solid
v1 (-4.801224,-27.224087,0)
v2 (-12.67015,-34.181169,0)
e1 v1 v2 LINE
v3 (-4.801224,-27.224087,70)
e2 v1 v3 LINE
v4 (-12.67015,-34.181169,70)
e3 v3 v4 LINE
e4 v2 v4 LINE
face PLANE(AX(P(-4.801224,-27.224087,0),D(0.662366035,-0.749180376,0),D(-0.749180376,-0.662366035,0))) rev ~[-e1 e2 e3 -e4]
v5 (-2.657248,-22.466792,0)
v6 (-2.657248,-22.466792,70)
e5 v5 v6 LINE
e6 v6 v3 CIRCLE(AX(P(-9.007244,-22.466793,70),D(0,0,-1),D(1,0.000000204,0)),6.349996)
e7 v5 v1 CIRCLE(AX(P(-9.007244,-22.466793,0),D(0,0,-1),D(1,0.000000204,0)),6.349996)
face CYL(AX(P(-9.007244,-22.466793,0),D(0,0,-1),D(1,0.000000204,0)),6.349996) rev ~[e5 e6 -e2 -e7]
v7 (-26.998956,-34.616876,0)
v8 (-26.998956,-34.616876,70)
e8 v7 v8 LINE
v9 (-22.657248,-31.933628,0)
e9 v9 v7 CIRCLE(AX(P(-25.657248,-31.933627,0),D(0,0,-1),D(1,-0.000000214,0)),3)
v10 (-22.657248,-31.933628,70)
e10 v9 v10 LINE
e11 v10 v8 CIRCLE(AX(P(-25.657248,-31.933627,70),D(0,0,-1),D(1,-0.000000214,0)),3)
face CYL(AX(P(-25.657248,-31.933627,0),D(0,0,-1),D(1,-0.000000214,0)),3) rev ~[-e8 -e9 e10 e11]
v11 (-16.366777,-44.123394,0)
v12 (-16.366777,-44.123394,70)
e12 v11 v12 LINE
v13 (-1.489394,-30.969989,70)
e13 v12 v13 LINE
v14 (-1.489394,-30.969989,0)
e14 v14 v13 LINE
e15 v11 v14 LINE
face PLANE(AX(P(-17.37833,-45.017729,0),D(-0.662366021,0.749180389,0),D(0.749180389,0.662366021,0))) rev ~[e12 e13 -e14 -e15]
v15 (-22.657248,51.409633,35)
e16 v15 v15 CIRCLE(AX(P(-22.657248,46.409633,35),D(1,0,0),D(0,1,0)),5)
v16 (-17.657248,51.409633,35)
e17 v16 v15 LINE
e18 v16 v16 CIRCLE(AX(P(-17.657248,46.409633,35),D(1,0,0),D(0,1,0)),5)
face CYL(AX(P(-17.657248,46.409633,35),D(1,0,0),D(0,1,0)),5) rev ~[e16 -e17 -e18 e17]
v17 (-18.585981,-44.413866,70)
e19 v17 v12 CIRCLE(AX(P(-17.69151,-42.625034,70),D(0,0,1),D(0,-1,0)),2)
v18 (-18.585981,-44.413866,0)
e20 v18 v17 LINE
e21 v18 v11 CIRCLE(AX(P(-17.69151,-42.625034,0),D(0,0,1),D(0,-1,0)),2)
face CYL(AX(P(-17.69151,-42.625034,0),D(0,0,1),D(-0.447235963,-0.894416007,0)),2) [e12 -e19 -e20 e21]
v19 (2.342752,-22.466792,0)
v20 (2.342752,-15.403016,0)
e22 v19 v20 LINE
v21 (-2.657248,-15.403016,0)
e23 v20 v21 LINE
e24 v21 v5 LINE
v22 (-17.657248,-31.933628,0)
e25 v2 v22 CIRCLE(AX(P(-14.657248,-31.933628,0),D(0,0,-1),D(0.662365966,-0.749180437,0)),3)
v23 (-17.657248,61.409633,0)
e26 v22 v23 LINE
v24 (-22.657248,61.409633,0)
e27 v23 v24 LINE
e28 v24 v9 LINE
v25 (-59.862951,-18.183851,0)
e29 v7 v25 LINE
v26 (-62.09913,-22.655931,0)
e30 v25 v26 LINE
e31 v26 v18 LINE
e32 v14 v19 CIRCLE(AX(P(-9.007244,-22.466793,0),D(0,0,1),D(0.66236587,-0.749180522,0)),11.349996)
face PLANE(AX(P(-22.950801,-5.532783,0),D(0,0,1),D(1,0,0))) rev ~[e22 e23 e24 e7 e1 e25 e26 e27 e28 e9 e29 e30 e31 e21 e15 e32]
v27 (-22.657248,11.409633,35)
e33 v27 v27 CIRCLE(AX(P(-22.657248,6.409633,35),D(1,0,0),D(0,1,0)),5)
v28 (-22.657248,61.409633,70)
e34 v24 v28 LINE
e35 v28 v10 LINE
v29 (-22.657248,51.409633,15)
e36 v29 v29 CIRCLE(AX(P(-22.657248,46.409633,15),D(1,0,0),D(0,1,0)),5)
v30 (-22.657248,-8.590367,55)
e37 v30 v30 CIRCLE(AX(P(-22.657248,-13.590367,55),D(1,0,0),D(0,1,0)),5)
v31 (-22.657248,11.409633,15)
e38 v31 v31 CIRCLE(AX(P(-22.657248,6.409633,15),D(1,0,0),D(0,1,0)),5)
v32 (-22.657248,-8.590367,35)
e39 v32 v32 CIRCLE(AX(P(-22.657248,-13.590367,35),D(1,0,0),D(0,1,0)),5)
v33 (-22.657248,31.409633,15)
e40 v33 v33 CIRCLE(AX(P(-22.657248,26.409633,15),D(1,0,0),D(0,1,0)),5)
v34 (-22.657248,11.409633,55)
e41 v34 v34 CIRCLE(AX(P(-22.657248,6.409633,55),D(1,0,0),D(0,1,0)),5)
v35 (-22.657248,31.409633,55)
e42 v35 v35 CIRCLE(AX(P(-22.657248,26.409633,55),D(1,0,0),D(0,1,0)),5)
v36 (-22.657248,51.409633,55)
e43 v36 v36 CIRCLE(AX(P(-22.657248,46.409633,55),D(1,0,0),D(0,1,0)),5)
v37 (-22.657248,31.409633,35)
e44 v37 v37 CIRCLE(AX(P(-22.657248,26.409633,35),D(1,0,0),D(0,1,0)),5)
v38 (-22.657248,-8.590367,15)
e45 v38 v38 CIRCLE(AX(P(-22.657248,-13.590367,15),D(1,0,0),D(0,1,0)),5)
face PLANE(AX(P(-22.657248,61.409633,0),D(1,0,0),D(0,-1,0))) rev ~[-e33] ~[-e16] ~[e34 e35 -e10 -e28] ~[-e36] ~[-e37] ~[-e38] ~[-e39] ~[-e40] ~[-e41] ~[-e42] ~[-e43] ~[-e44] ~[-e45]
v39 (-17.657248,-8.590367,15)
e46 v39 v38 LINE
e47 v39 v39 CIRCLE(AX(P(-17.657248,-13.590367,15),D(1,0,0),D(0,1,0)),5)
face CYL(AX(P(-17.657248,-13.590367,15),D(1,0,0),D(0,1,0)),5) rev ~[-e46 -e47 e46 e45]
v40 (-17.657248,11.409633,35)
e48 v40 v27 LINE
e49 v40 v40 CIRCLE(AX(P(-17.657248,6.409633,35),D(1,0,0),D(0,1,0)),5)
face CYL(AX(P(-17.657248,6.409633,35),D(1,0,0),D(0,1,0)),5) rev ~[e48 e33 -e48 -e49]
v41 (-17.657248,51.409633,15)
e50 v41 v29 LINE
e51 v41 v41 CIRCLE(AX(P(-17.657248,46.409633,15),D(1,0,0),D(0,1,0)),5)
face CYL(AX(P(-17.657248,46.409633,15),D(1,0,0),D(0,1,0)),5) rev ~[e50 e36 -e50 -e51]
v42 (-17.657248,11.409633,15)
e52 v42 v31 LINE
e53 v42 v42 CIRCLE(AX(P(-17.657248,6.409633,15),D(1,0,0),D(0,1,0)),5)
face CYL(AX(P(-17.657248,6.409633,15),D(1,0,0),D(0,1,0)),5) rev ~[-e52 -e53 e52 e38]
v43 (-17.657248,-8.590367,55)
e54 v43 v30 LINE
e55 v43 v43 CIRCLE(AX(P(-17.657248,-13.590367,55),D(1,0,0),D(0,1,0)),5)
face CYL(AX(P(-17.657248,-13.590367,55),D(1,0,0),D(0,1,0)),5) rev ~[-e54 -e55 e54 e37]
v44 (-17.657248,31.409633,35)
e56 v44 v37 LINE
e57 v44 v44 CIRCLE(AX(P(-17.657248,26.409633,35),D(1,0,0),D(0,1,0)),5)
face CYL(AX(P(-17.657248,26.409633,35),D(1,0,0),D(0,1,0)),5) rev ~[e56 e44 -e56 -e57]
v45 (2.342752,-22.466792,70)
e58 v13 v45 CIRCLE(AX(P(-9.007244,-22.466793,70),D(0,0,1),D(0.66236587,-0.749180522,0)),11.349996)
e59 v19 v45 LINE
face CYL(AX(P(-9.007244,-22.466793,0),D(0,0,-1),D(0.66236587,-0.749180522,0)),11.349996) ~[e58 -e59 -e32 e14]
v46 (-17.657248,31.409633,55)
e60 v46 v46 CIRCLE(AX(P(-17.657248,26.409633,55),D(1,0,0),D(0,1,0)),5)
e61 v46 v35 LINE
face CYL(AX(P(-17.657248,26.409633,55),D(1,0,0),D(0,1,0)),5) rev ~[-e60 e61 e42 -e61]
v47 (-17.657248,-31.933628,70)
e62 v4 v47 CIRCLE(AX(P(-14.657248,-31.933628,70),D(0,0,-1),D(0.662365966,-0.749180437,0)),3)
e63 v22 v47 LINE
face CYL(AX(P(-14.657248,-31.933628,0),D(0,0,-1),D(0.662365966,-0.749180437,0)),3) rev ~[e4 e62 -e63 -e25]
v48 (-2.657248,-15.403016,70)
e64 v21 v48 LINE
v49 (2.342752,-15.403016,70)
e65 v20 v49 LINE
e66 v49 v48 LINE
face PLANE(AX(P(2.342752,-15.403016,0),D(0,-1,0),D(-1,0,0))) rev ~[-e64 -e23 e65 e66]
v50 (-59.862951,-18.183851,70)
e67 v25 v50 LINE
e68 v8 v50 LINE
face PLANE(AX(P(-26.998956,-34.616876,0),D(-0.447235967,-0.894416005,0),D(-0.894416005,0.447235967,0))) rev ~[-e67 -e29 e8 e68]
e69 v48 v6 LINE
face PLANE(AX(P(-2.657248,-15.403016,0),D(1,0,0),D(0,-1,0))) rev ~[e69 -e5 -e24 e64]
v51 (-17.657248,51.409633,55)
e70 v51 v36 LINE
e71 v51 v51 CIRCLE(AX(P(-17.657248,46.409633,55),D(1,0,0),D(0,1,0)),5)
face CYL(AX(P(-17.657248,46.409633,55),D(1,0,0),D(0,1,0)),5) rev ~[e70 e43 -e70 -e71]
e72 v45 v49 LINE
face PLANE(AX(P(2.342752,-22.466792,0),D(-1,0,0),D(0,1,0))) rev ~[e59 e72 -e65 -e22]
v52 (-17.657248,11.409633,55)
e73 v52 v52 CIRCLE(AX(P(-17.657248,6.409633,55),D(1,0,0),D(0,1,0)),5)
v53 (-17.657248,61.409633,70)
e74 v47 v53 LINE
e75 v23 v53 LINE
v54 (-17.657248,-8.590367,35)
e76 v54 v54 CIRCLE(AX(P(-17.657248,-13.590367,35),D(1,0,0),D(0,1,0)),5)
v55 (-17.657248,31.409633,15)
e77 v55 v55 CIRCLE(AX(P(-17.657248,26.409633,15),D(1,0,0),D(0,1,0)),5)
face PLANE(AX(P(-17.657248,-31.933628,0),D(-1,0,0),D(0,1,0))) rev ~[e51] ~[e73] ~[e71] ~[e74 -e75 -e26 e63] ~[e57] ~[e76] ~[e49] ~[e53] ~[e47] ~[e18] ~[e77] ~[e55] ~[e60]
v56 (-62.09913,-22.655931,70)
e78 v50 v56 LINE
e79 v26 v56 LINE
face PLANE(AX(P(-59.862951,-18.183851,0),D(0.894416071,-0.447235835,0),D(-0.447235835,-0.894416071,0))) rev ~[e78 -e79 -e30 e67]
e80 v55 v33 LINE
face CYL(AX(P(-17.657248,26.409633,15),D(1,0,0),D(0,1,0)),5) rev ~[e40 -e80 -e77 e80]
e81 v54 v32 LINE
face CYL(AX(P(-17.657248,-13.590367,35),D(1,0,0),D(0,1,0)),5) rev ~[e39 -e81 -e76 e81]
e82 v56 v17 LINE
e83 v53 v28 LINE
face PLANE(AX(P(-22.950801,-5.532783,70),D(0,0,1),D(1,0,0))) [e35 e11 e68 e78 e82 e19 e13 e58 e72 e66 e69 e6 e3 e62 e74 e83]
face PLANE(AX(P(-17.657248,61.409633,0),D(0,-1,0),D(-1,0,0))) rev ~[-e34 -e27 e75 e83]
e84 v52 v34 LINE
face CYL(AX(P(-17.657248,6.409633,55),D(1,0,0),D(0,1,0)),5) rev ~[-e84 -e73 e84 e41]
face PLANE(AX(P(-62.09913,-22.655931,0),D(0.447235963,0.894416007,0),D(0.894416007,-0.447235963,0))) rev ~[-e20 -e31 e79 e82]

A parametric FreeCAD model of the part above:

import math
import FreeCAD as App
import Part
import Sketcher
Q = App.Units.Quantity


def edges_at(feature, points):
    """Names of the edges that pass closest to the given points."""
    edges = feature.Shape.Edges
    near = lambda p: min(range(len(edges)), key=lambda i: edges[i].distToShape(Part.Vertex(*p))[0])
    return sorted({f"Edge{near(p) + 1}" for p in points})

doc = App.newDocument("Part")
body = doc.addObject("PartDesign::Body", "Body")

# Sketch on XY plane
sketch1 = doc.addObject("Sketcher::SketchObject", "Sketch")
body.addObject(sketch1)
sketch1.AttachmentSupport = (doc.XY_Plane, [""])
sketch1.MapMode = "FlatFace"
sketch1.addGeometry(Part.LineSegment(App.Vector(-17.7, -31.9, 0), App.Vector(-17.7, 61.4, 0)), False)
sketch1.addGeometry(Part.LineSegment(App.Vector(-17.7, 61.4, 0), App.Vector(-22.7, 61.4, 0)), False)
sketch1.addGeometry(Part.LineSegment(App.Vector(-22.7, 61.4, 0), App.Vector(-22.7, -31.9, 0)), False)
sketch1.addGeometry(Part.ArcOfCircle(Part.Circle(App.Vector(-25.7, -31.9, 0), App.Vector(0, 0, 1), 3), math.radians(-117), math.radians(0)), False)
sketch1.addGeometry(Part.LineSegment(App.Vector(-27, -34.6, 0), App.Vector(-59.9, -18.2, 0)), False)
sketch1.addGeometry(Part.LineSegment(App.Vector(-59.9, -18.2, 0), App.Vector(-62.1, -22.7, 0)), False)
sketch1.addGeometry(Part.LineSegment(App.Vector(-62.1, -22.7, 0), App.Vector(-17.4, -45, 0)), False)
sketch1.addGeometry(Part.LineSegment(App.Vector(-17.4, -45, 0), App.Vector(-1.5, -31, 0)), False)
sketch1.addGeometry(Part.ArcOfCircle(Part.Circle(App.Vector(-9, -22.5, 0), App.Vector(0, 0, 1), 11.3), math.radians(-49), math.radians(0)), False)
sketch1.addGeometry(Part.LineSegment(App.Vector(2.3, -22.5, 0), App.Vector(2.3, -15.4, 0)), False)
sketch1.addGeometry(Part.LineSegment(App.Vector(2.3, -15.4, 0), App.Vector(-2.7, -15.4, 0)), False)
sketch1.addGeometry(Part.LineSegment(App.Vector(-2.7, -15.4, 0), App.Vector(-2.7, -22.5, 0)), False)
sketch1.addGeometry(Part.ArcOfCircle(Part.Circle(App.Vector(-9, -22.5, 0), App.Vector(0, 0, 1), 6.3), math.radians(-49), math.radians(0)), False)
sketch1.addGeometry(Part.LineSegment(App.Vector(-4.8, -27.2, 0), App.Vector(-12.7, -34.2, 0)), False)
sketch1.addGeometry(Part.ArcOfCircle(Part.Circle(App.Vector(-14.7, -31.9, 0), App.Vector(0, 0, 1), 3), math.radians(-180), math.radians(-49)), False)
sketch1.addConstraint(Sketcher.Constraint("Coincident", 0, 2, 1, 1))
sketch1.addConstraint(Sketcher.Constraint("Coincident", 1, 2, 2, 1))
sketch1.addConstraint(Sketcher.Constraint("Tangent", 2, 2, 3, 2))
sketch1.addConstraint(Sketcher.Constraint("Tangent", 3, 1, 4, 1))
sketch1.addConstraint(Sketcher.Constraint("Coincident", 4, 2, 5, 1))
sketch1.addConstraint(Sketcher.Constraint("Coincident", 5, 2, 6, 1))
sketch1.addConstraint(Sketcher.Constraint("Coincident", 6, 2, 7, 1))
sketch1.addConstraint(Sketcher.Constraint("Tangent", 7, 2, 8, 1))
sketch1.addConstraint(Sketcher.Constraint("Tangent", 8, 2, 9, 1))
sketch1.addConstraint(Sketcher.Constraint("Coincident", 9, 2, 10, 1))
sketch1.addConstraint(Sketcher.Constraint("Coincident", 10, 2, 11, 1))
sketch1.addConstraint(Sketcher.Constraint("Tangent", 11, 2, 12, 2))
sketch1.addConstraint(Sketcher.Constraint("Tangent", 12, 1, 13, 1))
sketch1.addConstraint(Sketcher.Constraint("Tangent", 13, 2, 14, 2))
sketch1.addConstraint(Sketcher.Constraint("Tangent", 14, 1, 0, 1))
sketch1.addConstraint(Sketcher.Constraint("Vertical", 0))
sketch1.addConstraint(Sketcher.Constraint("Horizontal", 1))
sketch1.addConstraint(Sketcher.Constraint("Vertical", 2))
sketch1.addConstraint(Sketcher.Constraint("Vertical", 9))
sketch1.addConstraint(Sketcher.Constraint("Horizontal", 10))
sketch1.addConstraint(Sketcher.Constraint("Vertical", 11))
sketch1.addConstraint(Sketcher.Constraint("Coincident", 12, 3, 8, 3))
sketch1.addConstraint(Sketcher.Constraint("Equal", 3, 14))
sketch1.addConstraint(Sketcher.Constraint("Perpendicular", 4, 5))
sketch1.addConstraint(Sketcher.Constraint("Perpendicular", 5, 6))
sketch1.addConstraint(Sketcher.Constraint("Parallel", 7, 13))
sketch1.addConstraint(Sketcher.Constraint("Horizontal", 3, 3, 14, 3))
sketch1.addConstraint(Sketcher.Constraint("Equal", 1, 10))
sketch1.addConstraint(Sketcher.Constraint("Radius", 3, Q("3 mm")))
sketch1.addConstraint(Sketcher.Constraint("DistanceX", 1, 2, 1, 1, Q("5 mm")))
sketch1.addConstraint(Sketcher.Constraint("Distance", 5, Q("5 mm")))
sketch1.addConstraint(Sketcher.Constraint("Distance", 6, Q("50 mm")))
sketch1.addConstraint(Sketcher.Constraint("DistanceX", 14, 3, 8, 2, Q("17 mm")))
sketch1.addConstraint(Sketcher.Constraint("Radius", 8, Q("11.349996 mm")))
sketch1.addConstraint(Sketcher.Constraint("DistanceY", 0, 1, 0, 2, Q("93.343261 mm")))
sketch1.addConstraint(Sketcher.Constraint("DistanceY", 6, 2, 14, 3, Q("13.084101 mm")))
sketch1.addConstraint(Sketcher.Constraint("DistanceY", 7, 2, 12, 1, Q("3.745902 mm")))
sketch1.addConstraint(Sketcher.Constraint("DistanceY", 9, 1, 9, 2, Q("7.063776 mm")))
sketch1.addConstraint(Sketcher.Constraint("DistanceX", 3, 3, -1, 1, Q("25.657248 mm")))
sketch1.addConstraint(Sketcher.Constraint("DistanceY", 4, 2, -1, 1, Q("18.183851 mm")))
pad1 = doc.addObject("PartDesign::Pad", "Pad")
body.addObject(pad1)
pad1.Profile = sketch1
pad1.Length = 70

# Sketch on YZ plane
sketch2 = doc.addObject("Sketcher::SketchObject", "Sketch001")
body.addObject(sketch2)
sketch2.AttachmentSupport = (doc.YZ_Plane, [""])
sketch2.MapMode = "FlatFace"
sketch2.AttachmentOffset = App.Placement(App.Vector(0, 0, -17.657248), App.Rotation())
sketch2.addGeometry(Part.Circle(App.Vector(46, 55, 0), App.Vector(0, 0, 1), 5), False)
sketch2.addGeometry(Part.Circle(App.Vector(46, 35, 0), App.Vector(0, 0, 1), 5), False)
sketch2.addGeometry(Part.Circle(App.Vector(46, 15, 0), App.Vector(0, 0, 1), 5), False)
sketch2.addGeometry(Part.Circle(App.Vector(26, 55, 0), App.Vector(0, 0, 1), 5), False)
sketch2.addGeometry(Part.Circle(App.Vector(26, 35, 0), App.Vector(0, 0, 1), 5), False)
sketch2.addGeometry(Part.Circle(App.Vector(26, 15, 0), App.Vector(0, 0, 1), 5), False)
sketch2.addGeometry(Part.Circle(App.Vector(6, 55, 0), App.Vector(0, 0, 1), 5), False)
sketch2.addGeometry(Part.Circle(App.Vector(6, 35, 0), App.Vector(0, 0, 1), 5), False)
sketch2.addGeometry(Part.Circle(App.Vector(6, 15, 0), App.Vector(0, 0, 1), 5), False)
sketch2.addGeometry(Part.Circle(App.Vector(-14, 55, 0), App.Vector(0, 0, 1), 5), False)
sketch2.addGeometry(Part.Circle(App.Vector(-14, 35, 0), App.Vector(0, 0, 1), 5), False)
sketch2.addGeometry(Part.Circle(App.Vector(-14, 15, 0), App.Vector(0, 0, 1), 5), False)
sketch2.addConstraint(Sketcher.Constraint("Equal", 0, 1))
sketch2.addConstraint(Sketcher.Constraint("Equal", 1, 2))
sketch2.addConstraint(Sketcher.Constraint("Equal", 2, 3))
sketch2.addConstraint(Sketcher.Constraint("Equal", 3, 4))
sketch2.addConstraint(Sketcher.Constraint("Equal", 4, 5))
sketch2.addConstraint(Sketcher.Constraint("Equal", 5, 6))
sketch2.addConstraint(Sketcher.Constraint("Equal", 6, 7))
sketch2.addConstraint(Sketcher.Constraint("Equal", 7, 8))
sketch2.addConstraint(Sketcher.Constraint("Equal", 8, 9))
sketch2.addConstraint(Sketcher.Constraint("Equal", 9, 10))
sketch2.addConstraint(Sketcher.Constraint("Equal", 10, 11))
sketch2.addConstraint(Sketcher.Constraint("Horizontal", 0, 3, 3, 3))
sketch2.addConstraint(Sketcher.Constraint("Horizontal", 1, 3, 4, 3))
sketch2.addConstraint(Sketcher.Constraint("Horizontal", 2, 3, 5, 3))
sketch2.addConstraint(Sketcher.Constraint("Horizontal", 3, 3, 6, 3))
sketch2.addConstraint(Sketcher.Constraint("Horizontal", 4, 3, 7, 3))
sketch2.addConstraint(Sketcher.Constraint("Horizontal", 5, 3, 8, 3))
sketch2.addConstraint(Sketcher.Constraint("Horizontal", 6, 3, 9, 3))
sketch2.addConstraint(Sketcher.Constraint("Horizontal", 7, 3, 10, 3))
sketch2.addConstraint(Sketcher.Constraint("Horizontal", 8, 3, 11, 3))
sketch2.addConstraint(Sketcher.Constraint("Vertical", 0, 3, 1, 3))
sketch2.addConstraint(Sketcher.Constraint("Vertical", 1, 3, 2, 3))
sketch2.addConstraint(Sketcher.Constraint("Vertical", 3, 3, 4, 3))
sketch2.addConstraint(Sketcher.Constraint("Vertical", 4, 3, 5, 3))
sketch2.addConstraint(Sketcher.Constraint("Vertical", 6, 3, 7, 3))
sketch2.addConstraint(Sketcher.Constraint("Vertical", 7, 3, 8, 3))
sketch2.addConstraint(Sketcher.Constraint("Vertical", 9, 3, 10, 3))
sketch2.addConstraint(Sketcher.Constraint("Vertical", 10, 3, 11, 3))
sketch2.addConstraint(Sketcher.Constraint("Diameter", 0, Q("10 mm")))
sketch2.addConstraint(Sketcher.Constraint("DistanceY", -1, 1, 0, 3, Q("55 mm")))
sketch2.addConstraint(Sketcher.Constraint("DistanceY", -1, 1, 1, 3, Q("35 mm")))
sketch2.addConstraint(Sketcher.Constraint("DistanceY", -1, 1, 2, 3, Q("15 mm")))
sketch2.addConstraint(Sketcher.Constraint("DistanceX", 3, 3, 0, 3, Q("20 mm")))
sketch2.addConstraint(Sketcher.Constraint("DistanceX", 6, 3, 3, 3, Q("20 mm")))
sketch2.addConstraint(Sketcher.Constraint("DistanceX", 9, 3, 6, 3, Q("20 mm")))
sketch2.addConstraint(Sketcher.Constraint("DistanceX", -1, 1, 0, 3, Q("46.409633 mm")))
pocket1 = doc.addObject("PartDesign::Pocket", "Pocket")
body.addObject(pocket1)
pocket1.Profile = sketch2
pocket1.Length = 25
doc.recompute()

fillet = doc.addObject("PartDesign::Fillet", "Fillet")
body.addObject(fillet)
fillet.Base = (pocket1, edges_at(pocket1, [(-17.378, -45.018, 35)]))
fillet.Radius = 2

doc.recompute()
